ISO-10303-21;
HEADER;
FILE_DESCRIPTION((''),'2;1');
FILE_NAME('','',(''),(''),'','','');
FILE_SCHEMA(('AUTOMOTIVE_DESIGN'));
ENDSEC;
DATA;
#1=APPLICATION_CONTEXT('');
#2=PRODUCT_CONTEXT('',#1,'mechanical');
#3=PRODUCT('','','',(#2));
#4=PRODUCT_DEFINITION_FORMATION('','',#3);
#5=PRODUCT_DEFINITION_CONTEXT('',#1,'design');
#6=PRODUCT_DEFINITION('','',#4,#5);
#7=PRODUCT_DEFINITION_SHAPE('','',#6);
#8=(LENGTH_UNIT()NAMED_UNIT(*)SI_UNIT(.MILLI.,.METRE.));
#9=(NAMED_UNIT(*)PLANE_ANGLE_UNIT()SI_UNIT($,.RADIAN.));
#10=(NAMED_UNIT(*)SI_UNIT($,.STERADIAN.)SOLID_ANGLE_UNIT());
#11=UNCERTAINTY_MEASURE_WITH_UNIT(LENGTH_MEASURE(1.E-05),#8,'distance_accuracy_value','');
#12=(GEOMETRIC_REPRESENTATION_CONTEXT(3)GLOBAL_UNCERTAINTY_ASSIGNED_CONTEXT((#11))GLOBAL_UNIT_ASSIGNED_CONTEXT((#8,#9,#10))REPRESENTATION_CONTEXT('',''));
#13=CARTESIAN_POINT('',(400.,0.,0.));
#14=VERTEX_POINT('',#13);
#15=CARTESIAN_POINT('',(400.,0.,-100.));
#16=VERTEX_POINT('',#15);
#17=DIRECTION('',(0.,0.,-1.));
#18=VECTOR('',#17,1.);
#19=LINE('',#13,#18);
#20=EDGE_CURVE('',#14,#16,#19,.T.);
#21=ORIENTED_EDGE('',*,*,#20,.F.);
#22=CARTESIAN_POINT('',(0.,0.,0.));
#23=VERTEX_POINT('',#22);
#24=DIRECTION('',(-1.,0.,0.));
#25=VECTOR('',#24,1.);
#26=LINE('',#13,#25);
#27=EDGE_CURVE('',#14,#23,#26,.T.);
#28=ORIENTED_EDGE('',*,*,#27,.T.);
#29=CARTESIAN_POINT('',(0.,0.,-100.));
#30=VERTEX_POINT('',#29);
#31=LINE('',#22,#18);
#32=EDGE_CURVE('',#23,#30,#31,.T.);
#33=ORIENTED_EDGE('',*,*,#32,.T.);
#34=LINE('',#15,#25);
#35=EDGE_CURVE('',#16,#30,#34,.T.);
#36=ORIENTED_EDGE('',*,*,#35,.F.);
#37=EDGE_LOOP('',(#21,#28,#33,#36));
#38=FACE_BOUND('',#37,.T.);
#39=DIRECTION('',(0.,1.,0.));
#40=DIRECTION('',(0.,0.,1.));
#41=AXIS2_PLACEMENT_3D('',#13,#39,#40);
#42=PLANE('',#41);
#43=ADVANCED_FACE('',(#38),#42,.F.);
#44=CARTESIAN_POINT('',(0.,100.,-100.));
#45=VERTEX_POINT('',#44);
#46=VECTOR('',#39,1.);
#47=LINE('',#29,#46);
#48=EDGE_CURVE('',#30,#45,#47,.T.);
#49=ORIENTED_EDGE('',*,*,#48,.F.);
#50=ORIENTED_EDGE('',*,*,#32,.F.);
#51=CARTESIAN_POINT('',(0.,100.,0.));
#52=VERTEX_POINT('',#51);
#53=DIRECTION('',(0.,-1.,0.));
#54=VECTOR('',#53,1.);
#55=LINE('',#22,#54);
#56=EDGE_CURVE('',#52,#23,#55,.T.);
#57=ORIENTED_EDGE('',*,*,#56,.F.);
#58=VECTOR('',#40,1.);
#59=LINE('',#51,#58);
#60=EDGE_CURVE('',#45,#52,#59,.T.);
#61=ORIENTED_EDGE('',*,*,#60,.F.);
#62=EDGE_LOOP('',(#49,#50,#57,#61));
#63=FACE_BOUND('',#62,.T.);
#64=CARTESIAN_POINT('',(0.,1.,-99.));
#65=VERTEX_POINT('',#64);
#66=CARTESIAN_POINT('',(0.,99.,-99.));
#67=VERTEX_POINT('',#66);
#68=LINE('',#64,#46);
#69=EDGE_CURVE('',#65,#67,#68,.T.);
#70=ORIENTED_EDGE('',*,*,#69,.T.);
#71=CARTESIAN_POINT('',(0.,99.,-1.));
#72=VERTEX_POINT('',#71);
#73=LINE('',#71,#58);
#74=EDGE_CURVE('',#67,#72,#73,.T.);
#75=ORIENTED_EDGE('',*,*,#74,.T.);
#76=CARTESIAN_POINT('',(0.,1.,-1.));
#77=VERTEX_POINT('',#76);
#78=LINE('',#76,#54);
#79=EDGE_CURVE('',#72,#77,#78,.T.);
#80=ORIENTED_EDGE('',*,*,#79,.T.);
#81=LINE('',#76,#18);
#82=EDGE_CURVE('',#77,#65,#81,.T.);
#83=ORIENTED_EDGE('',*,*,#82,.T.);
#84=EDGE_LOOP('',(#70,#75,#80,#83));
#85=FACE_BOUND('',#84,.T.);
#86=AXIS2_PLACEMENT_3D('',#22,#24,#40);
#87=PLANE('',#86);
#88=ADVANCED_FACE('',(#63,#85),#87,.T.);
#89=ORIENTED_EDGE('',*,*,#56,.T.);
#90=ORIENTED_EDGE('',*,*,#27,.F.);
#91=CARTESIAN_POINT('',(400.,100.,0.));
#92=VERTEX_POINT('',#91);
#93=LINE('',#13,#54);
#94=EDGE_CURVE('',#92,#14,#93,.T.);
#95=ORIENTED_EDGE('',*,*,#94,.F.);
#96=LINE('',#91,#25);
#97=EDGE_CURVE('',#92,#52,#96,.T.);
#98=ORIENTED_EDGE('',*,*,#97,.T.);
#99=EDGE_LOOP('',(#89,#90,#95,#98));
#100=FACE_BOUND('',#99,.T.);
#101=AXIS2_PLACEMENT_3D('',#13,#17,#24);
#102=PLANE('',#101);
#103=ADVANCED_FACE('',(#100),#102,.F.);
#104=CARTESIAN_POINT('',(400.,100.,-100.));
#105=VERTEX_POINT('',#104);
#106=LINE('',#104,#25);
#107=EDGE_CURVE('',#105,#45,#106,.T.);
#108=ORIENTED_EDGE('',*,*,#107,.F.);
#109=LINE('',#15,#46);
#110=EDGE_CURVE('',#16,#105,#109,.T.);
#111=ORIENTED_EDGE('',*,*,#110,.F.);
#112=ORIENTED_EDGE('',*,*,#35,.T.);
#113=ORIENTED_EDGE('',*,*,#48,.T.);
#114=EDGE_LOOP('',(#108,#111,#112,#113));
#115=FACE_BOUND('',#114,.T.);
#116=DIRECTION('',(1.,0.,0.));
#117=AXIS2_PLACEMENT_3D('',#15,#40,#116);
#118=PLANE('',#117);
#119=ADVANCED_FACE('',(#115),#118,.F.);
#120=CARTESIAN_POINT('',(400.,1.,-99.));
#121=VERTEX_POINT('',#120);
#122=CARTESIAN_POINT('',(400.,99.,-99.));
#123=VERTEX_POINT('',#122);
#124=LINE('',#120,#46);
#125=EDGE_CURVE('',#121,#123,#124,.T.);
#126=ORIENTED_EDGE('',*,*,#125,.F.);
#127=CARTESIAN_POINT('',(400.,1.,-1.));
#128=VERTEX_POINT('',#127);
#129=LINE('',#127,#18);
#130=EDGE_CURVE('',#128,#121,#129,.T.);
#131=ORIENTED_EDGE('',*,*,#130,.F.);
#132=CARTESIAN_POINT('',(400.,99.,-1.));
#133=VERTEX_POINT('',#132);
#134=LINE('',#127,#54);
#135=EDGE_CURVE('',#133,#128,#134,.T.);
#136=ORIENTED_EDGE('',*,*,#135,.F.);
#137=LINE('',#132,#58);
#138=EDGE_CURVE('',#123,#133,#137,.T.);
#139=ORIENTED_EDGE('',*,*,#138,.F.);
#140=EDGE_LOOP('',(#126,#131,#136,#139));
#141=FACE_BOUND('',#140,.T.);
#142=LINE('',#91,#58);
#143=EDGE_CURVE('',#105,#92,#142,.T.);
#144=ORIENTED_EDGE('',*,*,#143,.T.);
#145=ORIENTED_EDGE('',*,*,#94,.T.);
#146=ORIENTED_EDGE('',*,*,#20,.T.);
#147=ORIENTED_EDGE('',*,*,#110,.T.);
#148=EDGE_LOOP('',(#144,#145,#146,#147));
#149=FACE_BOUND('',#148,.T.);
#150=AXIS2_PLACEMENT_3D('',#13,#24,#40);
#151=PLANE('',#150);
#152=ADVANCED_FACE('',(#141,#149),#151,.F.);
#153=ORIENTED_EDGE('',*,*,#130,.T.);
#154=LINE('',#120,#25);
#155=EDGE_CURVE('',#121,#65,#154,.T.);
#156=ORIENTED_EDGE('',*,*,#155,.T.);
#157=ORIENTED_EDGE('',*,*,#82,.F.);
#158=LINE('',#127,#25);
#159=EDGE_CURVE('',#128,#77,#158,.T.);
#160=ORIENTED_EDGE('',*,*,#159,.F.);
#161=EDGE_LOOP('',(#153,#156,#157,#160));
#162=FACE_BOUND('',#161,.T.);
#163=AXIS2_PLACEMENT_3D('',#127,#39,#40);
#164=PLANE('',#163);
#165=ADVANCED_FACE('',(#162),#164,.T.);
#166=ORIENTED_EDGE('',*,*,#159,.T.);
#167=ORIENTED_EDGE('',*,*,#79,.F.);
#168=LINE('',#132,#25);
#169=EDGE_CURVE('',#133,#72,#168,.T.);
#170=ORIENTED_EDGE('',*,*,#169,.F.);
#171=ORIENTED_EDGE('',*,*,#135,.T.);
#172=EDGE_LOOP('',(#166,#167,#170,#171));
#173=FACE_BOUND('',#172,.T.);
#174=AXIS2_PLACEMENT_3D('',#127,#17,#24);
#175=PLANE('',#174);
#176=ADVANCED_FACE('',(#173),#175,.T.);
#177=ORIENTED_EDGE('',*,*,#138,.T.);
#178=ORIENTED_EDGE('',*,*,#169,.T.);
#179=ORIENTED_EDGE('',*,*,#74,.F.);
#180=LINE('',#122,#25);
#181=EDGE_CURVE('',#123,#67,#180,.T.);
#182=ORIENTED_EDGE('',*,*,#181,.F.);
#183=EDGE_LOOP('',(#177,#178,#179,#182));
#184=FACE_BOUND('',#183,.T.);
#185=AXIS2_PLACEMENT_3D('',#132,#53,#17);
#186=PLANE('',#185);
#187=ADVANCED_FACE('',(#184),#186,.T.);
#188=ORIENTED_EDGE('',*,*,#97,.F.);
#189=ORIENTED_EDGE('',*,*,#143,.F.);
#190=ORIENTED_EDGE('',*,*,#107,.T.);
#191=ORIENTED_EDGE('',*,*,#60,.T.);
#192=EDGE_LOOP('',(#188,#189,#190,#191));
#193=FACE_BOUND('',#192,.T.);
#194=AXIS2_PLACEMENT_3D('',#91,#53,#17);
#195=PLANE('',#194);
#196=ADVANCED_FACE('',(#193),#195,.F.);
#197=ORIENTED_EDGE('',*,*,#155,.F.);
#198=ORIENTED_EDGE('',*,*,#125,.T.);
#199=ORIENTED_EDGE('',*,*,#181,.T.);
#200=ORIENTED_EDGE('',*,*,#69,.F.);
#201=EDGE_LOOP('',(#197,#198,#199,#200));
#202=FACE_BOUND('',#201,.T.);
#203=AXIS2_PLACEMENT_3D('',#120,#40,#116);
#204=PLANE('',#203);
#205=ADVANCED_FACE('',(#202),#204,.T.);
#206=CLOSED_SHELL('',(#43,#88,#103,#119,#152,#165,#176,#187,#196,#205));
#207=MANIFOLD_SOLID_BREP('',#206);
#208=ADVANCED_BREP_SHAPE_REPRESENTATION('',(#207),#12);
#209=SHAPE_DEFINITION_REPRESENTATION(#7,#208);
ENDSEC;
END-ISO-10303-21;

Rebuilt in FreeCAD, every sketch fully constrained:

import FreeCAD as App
import Part
import Sketcher
from FreeCAD import Vector

doc = App.newDocument("Part")
body = doc.addObject("PartDesign::Body", "Body")

# Sketch on YZ plane
sketch1 = doc.addObject("Sketcher::SketchObject", "Sketch")
body.addObject(sketch1)
sketch1.AttachmentSupport = (doc.YZ_Plane, [""])
sketch1.MapMode = "FlatFace"
sketch1.addGeometry(Part.LineSegment(Vector(100, 0, 0), Vector(0, 0, 0)), False)
sketch1.addGeometry(Part.LineSegment(Vector(0, 0, 0), Vector(0, -100, 0)), False)
sketch1.addGeometry(Part.LineSegment(Vector(0, -100, 0), Vector(100, -100, 0)), False)
sketch1.addGeometry(Part.LineSegment(Vector(100, -100, 0), Vector(100, 0, 0)), False)
sketch1.addGeometry(Part.LineSegment(Vector(1, -99, 0), Vector(1, -1, 0)), False)
sketch1.addGeometry(Part.LineSegment(Vector(1, -1, 0), Vector(99, -1, 0)), False)
sketch1.addGeometry(Part.LineSegment(Vector(99, -1, 0), Vector(99, -99, 0)), False)
sketch1.addGeometry(Part.LineSegment(Vector(99, -99, 0), Vector(1, -99, 0)), False)
sketch1.addConstraint(Sketcher.Constraint("Coincident", 0, 2, 1, 1))
sketch1.addConstraint(Sketcher.Constraint("Coincident", 1, 2, 2, 1))
sketch1.addConstraint(Sketcher.Constraint("Coincident", 2, 2, 3, 1))
sketch1.addConstraint(Sketcher.Constraint("Coincident", 3, 2, 0, 1))
sketch1.addConstraint(Sketcher.Constraint("Coincident", 4, 2, 5, 1))
sketch1.addConstraint(Sketcher.Constraint("Coincident", 5, 2, 6, 1))
sketch1.addConstraint(Sketcher.Constraint("Coincident", 6, 2, 7, 1))
sketch1.addConstraint(Sketcher.Constraint("Coincident", 7, 2, 4, 1))
sketch1.addConstraint(Sketcher.Constraint("Horizontal", 0))
sketch1.addConstraint(Sketcher.Constraint("Vertical", 1))
sketch1.addConstraint(Sketcher.Constraint("Horizontal", 2))
sketch1.addConstraint(Sketcher.Constraint("Vertical", 3))
sketch1.addConstraint(Sketcher.Constraint("Vertical", 4))
sketch1.addConstraint(Sketcher.Constraint("Horizontal", 5))
sketch1.addConstraint(Sketcher.Constraint("Vertical", 6))
sketch1.addConstraint(Sketcher.Constraint("Horizontal", 7))
sketch1.addConstraint(Sketcher.Constraint("Coincident", 0, 2, -1, 1))
sketch1.addConstraint(Sketcher.Constraint("Equal", 2, 1))
sketch1.addConstraint(Sketcher.Constraint("Equal", 7, 4))
sketch1.addConstraint(Sketcher.Constraint("DistanceX", 0, 2, 0, 1, 100.0))
sketch1.addConstraint(Sketcher.Constraint("DistanceX", 5, 1, 5, 2, 98.0))
sketch1.addConstraint(Sketcher.Constraint("DistanceX", -1, 1, 4, 2, 1.0))
sketch1.addConstraint(Sketcher.Constraint("DistanceY", 4, 2, -1, 1, 1.0))
pad1 = doc.addObject("PartDesign::Pad", "Pad")
body.addObject(pad1)
pad1.Profile = sketch1
pad1.Length = 400

doc.recompute()
